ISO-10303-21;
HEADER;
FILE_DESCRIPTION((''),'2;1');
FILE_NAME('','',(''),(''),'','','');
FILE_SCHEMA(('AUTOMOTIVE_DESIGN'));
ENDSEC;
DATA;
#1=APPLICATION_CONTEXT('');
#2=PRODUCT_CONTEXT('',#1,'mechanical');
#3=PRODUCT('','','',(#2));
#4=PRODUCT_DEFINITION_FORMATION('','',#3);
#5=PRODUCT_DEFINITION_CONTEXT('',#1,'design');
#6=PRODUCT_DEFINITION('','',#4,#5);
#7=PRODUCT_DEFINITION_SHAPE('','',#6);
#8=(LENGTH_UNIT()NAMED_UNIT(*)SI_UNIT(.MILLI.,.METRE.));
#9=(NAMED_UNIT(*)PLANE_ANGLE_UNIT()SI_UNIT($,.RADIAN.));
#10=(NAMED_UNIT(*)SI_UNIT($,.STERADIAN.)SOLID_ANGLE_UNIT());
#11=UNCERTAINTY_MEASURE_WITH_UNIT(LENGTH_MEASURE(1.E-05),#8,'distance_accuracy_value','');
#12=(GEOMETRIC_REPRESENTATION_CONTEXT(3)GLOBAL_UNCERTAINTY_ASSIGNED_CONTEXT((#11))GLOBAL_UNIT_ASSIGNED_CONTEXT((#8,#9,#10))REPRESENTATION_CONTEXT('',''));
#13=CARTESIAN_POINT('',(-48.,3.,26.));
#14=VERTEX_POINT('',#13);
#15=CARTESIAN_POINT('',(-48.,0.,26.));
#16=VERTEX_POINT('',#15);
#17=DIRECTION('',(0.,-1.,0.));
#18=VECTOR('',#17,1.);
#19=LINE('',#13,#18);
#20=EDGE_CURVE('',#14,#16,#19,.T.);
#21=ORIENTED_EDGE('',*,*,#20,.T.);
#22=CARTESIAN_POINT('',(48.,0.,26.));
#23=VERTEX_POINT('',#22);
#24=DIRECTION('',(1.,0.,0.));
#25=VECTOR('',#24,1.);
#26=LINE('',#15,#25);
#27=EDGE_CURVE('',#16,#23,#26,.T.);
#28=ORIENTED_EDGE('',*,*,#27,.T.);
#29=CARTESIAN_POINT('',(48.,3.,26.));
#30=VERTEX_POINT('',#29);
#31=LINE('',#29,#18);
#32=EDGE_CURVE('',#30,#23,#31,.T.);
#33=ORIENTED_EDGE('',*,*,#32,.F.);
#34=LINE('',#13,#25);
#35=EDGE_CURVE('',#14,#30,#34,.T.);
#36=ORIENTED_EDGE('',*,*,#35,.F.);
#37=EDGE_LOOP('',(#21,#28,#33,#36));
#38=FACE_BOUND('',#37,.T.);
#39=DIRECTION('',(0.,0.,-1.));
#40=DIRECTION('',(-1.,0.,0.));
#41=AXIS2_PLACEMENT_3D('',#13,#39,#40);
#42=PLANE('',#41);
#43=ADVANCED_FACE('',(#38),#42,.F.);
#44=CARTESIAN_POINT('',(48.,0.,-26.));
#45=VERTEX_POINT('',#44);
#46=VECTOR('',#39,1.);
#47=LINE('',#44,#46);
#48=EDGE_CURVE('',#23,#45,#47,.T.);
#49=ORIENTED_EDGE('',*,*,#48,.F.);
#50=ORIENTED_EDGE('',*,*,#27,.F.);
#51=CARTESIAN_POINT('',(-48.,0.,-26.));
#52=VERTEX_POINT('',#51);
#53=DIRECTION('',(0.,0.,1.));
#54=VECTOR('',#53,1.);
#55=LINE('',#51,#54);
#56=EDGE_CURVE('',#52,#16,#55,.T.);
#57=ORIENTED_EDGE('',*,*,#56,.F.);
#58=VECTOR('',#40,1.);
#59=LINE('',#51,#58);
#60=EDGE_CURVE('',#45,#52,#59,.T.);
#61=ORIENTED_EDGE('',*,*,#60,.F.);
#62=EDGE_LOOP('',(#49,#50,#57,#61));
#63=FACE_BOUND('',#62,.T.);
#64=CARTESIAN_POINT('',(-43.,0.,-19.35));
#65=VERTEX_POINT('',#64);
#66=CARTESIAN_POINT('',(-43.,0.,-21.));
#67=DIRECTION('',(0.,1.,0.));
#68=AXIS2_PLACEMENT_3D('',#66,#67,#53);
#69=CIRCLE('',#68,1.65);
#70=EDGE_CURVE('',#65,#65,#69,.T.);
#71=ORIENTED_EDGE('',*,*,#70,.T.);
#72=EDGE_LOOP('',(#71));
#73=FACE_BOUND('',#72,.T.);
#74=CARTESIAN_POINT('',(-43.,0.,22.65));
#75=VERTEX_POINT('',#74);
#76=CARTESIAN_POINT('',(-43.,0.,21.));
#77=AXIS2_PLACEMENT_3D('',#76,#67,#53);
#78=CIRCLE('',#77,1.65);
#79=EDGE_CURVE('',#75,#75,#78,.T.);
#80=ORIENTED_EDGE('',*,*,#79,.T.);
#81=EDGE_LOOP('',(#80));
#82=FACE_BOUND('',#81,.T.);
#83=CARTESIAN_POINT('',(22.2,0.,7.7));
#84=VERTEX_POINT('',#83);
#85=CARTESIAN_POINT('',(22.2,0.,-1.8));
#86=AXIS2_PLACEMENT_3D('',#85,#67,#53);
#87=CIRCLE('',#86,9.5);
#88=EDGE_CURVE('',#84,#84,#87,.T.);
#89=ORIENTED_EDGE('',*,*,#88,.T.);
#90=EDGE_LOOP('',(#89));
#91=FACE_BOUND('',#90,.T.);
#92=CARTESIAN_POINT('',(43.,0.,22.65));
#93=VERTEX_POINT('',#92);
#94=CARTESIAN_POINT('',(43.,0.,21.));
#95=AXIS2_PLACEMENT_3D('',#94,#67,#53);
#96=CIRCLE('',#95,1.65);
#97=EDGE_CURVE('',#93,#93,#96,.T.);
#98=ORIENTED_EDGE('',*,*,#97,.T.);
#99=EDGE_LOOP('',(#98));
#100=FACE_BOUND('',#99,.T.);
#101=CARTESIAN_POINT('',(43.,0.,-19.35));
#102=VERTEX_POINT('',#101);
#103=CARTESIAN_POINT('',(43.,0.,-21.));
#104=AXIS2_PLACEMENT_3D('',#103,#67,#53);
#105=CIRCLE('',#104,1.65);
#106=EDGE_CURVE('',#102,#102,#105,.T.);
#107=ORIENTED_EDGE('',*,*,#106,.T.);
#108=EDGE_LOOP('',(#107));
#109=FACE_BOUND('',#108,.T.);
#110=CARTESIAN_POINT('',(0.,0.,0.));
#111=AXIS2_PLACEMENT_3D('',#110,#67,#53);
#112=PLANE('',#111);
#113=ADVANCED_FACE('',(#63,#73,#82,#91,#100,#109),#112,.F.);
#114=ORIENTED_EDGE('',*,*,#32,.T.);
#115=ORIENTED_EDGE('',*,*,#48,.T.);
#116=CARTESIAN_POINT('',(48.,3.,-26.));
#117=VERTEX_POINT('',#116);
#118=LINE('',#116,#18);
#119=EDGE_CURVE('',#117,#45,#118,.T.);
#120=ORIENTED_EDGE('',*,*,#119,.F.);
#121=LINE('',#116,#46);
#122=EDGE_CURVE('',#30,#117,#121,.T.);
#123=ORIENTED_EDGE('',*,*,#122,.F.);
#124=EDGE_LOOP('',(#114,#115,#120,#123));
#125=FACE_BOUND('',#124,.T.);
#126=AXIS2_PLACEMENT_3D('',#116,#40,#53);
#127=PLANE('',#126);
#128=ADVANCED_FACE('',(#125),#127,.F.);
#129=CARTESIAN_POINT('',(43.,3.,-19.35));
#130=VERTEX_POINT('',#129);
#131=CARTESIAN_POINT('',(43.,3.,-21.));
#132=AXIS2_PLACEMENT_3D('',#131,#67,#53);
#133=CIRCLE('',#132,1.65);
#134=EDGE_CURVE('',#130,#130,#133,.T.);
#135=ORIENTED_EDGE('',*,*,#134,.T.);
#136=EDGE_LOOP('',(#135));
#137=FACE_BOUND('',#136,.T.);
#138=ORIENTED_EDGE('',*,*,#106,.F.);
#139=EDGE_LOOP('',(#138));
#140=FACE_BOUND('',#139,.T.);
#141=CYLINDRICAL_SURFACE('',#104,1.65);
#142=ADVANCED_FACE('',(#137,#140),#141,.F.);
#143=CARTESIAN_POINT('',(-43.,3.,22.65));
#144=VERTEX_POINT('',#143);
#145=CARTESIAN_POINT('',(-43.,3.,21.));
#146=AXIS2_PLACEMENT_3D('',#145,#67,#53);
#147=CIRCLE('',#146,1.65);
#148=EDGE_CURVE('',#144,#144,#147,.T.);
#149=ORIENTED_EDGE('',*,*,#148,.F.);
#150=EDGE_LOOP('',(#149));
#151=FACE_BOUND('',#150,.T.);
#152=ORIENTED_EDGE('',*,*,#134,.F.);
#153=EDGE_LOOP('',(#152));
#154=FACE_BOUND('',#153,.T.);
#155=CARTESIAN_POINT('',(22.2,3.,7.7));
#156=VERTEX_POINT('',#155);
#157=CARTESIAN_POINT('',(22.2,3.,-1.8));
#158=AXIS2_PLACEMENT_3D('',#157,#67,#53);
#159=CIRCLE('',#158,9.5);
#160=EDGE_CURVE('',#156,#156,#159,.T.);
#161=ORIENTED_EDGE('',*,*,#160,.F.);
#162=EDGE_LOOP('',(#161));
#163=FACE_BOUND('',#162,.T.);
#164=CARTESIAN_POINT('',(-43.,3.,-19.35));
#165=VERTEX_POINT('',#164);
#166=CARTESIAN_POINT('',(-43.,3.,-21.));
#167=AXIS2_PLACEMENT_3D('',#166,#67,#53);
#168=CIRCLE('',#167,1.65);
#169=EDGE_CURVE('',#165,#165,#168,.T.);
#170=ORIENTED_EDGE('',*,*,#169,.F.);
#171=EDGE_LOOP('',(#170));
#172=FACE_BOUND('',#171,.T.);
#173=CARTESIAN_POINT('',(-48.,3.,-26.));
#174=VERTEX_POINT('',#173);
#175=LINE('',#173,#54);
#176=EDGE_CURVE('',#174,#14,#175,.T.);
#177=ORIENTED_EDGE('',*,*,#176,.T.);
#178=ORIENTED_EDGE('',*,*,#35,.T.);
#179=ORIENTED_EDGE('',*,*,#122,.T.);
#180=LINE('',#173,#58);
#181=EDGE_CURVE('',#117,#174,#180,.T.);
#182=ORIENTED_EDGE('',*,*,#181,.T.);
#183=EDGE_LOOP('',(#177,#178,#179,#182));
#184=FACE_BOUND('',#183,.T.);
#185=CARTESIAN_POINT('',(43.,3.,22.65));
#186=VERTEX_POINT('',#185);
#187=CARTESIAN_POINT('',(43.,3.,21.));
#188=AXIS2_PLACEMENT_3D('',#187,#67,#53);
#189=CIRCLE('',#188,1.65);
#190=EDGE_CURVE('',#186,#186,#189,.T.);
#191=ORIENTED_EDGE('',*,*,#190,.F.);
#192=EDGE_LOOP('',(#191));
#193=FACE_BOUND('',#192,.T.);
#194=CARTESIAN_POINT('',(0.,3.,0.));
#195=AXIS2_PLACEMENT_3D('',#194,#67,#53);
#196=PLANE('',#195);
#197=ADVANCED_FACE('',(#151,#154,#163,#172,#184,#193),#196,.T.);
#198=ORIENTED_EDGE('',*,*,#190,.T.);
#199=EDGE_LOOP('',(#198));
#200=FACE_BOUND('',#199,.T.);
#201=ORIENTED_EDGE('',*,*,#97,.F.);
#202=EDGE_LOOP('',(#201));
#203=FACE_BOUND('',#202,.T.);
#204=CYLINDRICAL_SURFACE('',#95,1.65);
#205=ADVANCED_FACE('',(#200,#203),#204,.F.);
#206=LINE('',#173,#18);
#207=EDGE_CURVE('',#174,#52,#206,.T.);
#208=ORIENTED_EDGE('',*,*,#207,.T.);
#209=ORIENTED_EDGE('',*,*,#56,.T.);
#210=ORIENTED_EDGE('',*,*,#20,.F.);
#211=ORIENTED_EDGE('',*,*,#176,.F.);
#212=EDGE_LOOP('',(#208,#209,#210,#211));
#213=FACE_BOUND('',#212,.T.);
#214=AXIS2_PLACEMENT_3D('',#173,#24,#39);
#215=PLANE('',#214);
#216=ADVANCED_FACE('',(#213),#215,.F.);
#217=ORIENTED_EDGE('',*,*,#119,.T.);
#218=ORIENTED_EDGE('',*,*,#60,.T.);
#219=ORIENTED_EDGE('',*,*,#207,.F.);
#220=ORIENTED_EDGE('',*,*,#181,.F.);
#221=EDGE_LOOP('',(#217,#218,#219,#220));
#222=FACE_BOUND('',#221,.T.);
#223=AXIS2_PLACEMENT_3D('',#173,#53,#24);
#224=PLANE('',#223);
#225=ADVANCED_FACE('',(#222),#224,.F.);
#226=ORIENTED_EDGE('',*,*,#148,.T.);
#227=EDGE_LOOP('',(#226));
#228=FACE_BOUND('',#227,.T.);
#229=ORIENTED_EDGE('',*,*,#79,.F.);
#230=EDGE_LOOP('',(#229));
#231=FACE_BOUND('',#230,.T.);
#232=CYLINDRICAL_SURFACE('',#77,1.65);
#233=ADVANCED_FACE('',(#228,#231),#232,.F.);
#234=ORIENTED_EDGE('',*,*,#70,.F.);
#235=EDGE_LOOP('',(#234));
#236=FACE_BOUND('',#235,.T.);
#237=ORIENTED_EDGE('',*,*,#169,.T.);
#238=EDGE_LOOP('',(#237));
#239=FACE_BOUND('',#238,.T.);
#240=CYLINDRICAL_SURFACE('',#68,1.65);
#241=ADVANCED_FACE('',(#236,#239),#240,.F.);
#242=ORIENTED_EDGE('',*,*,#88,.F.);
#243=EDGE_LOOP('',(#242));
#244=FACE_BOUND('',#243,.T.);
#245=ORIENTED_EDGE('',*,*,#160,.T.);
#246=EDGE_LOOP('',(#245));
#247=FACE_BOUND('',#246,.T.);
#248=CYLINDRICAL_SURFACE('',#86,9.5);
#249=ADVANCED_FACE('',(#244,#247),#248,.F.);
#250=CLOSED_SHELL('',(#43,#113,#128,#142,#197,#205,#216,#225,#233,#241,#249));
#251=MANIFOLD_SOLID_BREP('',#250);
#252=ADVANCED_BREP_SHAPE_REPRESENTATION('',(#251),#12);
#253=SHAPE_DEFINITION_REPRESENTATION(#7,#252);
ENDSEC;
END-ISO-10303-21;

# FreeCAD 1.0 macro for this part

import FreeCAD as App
import Part
import Sketcher
Q = App.Units.Quantity


def add_polygon(sketch, points):
    """Adds a closed chain of lines whose ends are joined by coincident constraints."""
    first, n = sketch.GeometryCount, len(points)
    for a, b in zip(points, points[1:] + points[:1]):
        sketch.addGeometry(Part.LineSegment(App.Vector(*a, 0), App.Vector(*b, 0)), False)
    for i in range(n):
        sketch.addConstraint(Sketcher.Constraint("Coincident", first + i, 2, first + (i + 1) % n, 1))

doc = App.newDocument("Part")
body = doc.addObject("PartDesign::Body", "Body")

sketch1 = body.newObject("Sketcher::SketchObject", "Sketch")
sketch1.AttachmentSupport = (doc.getObject("XZ_Plane"), [""])
sketch1.MapMode = "FlatFace"
add_polygon(sketch1, [(-48, -26), (-48, 26), (48, 26), (48, -26)])
sketch1.addConstraint(Sketcher.Constraint("Vertical", 0))
sketch1.addConstraint(Sketcher.Constraint("Horizontal", 1))
sketch1.addConstraint(Sketcher.Constraint("Vertical", 2))
sketch1.addConstraint(Sketcher.Constraint("Horizontal", 3))
sketch1.addConstraint(Sketcher.Constraint("Symmetric", 0, 2, 2, 2, -1, 1))
sketch1.addConstraint(Sketcher.Constraint("DistanceX", 1, 1, 1, 2, Q("96 mm")))
sketch1.addConstraint(Sketcher.Constraint("DistanceY", 0, 1, 0, 2, Q("52 mm")))
pad1 = body.newObject("PartDesign::Pad", "Pad")
pad1.Profile = sketch1
pad1.Length = 3
pad1.Reversed = True

sketch2 = body.newObject("Sketcher::SketchObject", "Sketch001")
sketch2.AttachmentSupport = (doc.getObject("XZ_Plane"), [""])
sketch2.MapMode = "FlatFace"
sketch2.AttachmentOffset = App.Placement(App.Vector(0, 0, -3), App.Rotation())
sketch2.addGeometry(Part.Circle(App.Vector(-43, -21, 0), App.Vector(0, 0, 1), 1.6), False)
sketch2.addGeometry(Part.Circle(App.Vector(43, -21, 0), App.Vector(0, 0, 1), 1.6), False)
sketch2.addGeometry(Part.Circle(App.Vector(43, 21, 0), App.Vector(0, 0, 1), 1.6), False)
sketch2.addGeometry(Part.Circle(App.Vector(-43, 21, 0), App.Vector(0, 0, 1), 1.6), False)
sketch2.addGeometry(Part.Circle(App.Vector(22.2, -1.8, 0), App.Vector(0, 0, 1), 9.5), False)
sketch2.addConstraint(Sketcher.Constraint("Equal", 0, 1))
sketch2.addConstraint(Sketcher.Constraint("Equal", 1, 2))
sketch2.addConstraint(Sketcher.Constraint("Equal", 2, 3))
sketch2.addConstraint(Sketcher.Constraint("Symmetric", 0, 3, 2, 3, -1, 1))
sketch2.addConstraint(Sketcher.Constraint("Symmetric", 1, 3, 3, 3, -1, 1))
sketch2.addConstraint(Sketcher.Constraint("Symmetric", 0, 3, 1, 3, -2))
sketch2.addConstraint(Sketcher.Constraint("Diameter", 4, Q("19 mm")))
sketch2.addConstraint(Sketcher.Constraint("Diameter", 0, Q("3.3 mm")))
sketch2.addConstraint(Sketcher.Constraint("DistanceX", 0, 3, -1, 1, Q("43 mm")))
sketch2.addConstraint(Sketcher.Constraint("DistanceY", 0, 3, -1, 1, Q("21 mm")))
sketch2.addConstraint(Sketcher.Constraint("DistanceX", -1, 1, 4, 3, Q("22.2 mm")))
sketch2.addConstraint(Sketcher.Constraint("DistanceY", 4, 3, -1, 1, Q("1.8 mm")))
pocket1 = body.newObject("PartDesign::Pocket", "Pocket")
pocket1.Profile = sketch2
pocket1.Length = 3
pocket1.Reversed = True

doc.recompute()
